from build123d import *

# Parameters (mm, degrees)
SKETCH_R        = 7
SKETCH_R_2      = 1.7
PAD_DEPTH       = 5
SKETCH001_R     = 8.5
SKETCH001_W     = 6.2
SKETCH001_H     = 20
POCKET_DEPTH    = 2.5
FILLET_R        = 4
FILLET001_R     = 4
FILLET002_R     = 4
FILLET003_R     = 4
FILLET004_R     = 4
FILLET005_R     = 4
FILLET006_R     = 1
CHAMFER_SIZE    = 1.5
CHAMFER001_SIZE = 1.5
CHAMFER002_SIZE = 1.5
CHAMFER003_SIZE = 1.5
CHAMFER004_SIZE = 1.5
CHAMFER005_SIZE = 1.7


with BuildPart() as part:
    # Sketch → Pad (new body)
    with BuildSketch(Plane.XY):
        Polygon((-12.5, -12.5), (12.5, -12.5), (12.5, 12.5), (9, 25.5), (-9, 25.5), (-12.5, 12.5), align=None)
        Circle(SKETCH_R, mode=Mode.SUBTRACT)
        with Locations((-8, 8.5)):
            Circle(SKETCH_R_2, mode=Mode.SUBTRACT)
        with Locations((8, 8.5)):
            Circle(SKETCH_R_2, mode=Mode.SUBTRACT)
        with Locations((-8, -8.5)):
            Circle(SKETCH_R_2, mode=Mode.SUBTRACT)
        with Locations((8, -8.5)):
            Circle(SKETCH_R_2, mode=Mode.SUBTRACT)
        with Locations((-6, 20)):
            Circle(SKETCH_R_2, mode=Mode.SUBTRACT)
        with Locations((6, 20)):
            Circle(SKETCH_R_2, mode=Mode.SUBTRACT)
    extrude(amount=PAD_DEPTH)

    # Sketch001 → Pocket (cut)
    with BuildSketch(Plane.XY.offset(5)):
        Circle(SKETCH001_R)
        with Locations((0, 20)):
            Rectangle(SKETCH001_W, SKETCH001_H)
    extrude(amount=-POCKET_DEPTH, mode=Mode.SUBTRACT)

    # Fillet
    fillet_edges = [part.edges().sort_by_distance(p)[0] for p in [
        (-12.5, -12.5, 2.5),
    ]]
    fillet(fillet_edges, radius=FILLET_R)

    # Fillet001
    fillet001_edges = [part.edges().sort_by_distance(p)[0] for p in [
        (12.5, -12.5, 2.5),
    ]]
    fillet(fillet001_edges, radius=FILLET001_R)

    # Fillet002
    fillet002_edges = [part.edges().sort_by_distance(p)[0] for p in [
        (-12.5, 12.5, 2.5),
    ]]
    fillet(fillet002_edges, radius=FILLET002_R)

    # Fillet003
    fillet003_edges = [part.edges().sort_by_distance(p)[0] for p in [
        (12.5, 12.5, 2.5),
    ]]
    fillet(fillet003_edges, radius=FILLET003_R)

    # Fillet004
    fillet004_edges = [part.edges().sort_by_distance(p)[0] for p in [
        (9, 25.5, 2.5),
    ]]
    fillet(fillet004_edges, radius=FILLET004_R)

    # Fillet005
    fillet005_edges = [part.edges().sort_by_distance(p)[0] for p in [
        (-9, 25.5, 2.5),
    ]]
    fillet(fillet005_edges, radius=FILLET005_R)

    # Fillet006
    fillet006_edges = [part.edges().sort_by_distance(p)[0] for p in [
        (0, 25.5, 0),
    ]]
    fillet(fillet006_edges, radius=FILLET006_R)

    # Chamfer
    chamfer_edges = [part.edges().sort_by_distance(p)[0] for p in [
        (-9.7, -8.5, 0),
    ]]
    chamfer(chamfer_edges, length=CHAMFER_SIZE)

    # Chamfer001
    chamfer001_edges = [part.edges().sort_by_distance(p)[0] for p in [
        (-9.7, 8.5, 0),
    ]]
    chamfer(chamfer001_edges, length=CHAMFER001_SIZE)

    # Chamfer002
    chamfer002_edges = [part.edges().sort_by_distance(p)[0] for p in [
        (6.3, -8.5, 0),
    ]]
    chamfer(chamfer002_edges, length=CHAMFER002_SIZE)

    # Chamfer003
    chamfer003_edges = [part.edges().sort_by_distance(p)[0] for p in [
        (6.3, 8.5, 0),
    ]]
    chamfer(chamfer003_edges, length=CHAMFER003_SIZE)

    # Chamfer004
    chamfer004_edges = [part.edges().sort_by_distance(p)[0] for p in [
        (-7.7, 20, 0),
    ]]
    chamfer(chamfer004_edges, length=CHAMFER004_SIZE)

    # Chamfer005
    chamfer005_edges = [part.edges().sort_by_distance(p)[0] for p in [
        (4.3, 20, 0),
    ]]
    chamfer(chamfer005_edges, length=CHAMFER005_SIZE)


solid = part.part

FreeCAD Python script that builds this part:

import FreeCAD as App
import Part
import Sketcher

V = App.Vector


def edges_at(feature, points):
    """Names of the edges that pass closest to the given points."""
    edges = feature.Shape.Edges
    near = lambda p: min(range(len(edges)), key=lambda i: edges[i].distToShape(Part.Vertex(*p))[0])
    return sorted({f"Edge{near(p) + 1}" for p in points})

doc = App.newDocument("Part")
body = doc.addObject("PartDesign::Body", "Body")

# Sketch on XY plane
sketch1 = doc.addObject("Sketcher::SketchObject", "Sketch")
body.addObject(sketch1)
sketch1.AttachmentSupport = (doc.XY_Plane, [""])
sketch1.MapMode = "FlatFace"
sketch1.addGeometry([
    Part.LineSegment(V(-12.5, -12.5, 0), V(12.5, -12.5, 0)),  # 0
    Part.LineSegment(V(12.5, -12.5, 0), V(12.5, 12.5, 0)),  # 1
    Part.LineSegment(V(12.5, 12.5, 0), V(9, 25.5, 0)),  # 2
    Part.LineSegment(V(9, 25.5, 0), V(-9, 25.5, 0)),  # 3
    Part.LineSegment(V(-9, 25.5, 0), V(-12.5, 12.5, 0)),  # 4
    Part.LineSegment(V(-12.5, 12.5, 0), V(-12.5, -12.5, 0)),  # 5
    Part.Circle(V(-8, -8.5, 0), V(0, 0, 1), 1.7),  # 6
    Part.Circle(V(8, -8.5, 0), V(0, 0, 1), 1.7),  # 7
    Part.Circle(V(0, 0, 0), V(0, 0, 1), 7),  # 8
    Part.Circle(V(-8, 8.5, 0), V(0, 0, 1), 1.7),  # 9
    Part.Circle(V(-6, 20, 0), V(0, 0, 1), 1.7),  # 10
    Part.Circle(V(8, 8.5, 0), V(0, 0, 1), 1.7),  # 11
    Part.Circle(V(6, 20, 0), V(0, 0, 1), 1.7),  # 12
], False)
sketch1.addConstraint([
    Sketcher.Constraint("Coincident", 0, 2, 1, 1),
    Sketcher.Constraint("Coincident", 1, 2, 2, 1),
    Sketcher.Constraint("Coincident", 2, 2, 3, 1),
    Sketcher.Constraint("Coincident", 3, 2, 4, 1),
    Sketcher.Constraint("Coincident", 4, 2, 5, 1),
    Sketcher.Constraint("Coincident", 5, 2, 0, 1),
    Sketcher.Constraint("Horizontal", 0),
    Sketcher.Constraint("Vertical", 1),
    Sketcher.Constraint("Horizontal", 3),
    Sketcher.Constraint("Vertical", 5),
    Sketcher.Constraint("Coincident", 8, 3, -1, 1),
    Sketcher.Constraint("Equal", 6, 7),
    Sketcher.Constraint("Equal", 7, 9),
    Sketcher.Constraint("Equal", 9, 10),
    Sketcher.Constraint("Equal", 10, 11),
    Sketcher.Constraint("Equal", 11, 12),
    Sketcher.Constraint("Symmetric", 7, 3, 9, 3, -1, 1),
    Sketcher.Constraint("Symmetric", 6, 3, 11, 3, -1, 1),
    Sketcher.Constraint("Symmetric", 0, 2, 4, 2, -1, 1),
    Sketcher.Constraint("Symmetric", 6, 3, 7, 3, -2),
    Sketcher.Constraint("Symmetric", 10, 3, 12, 3, -2),
    Sketcher.Constraint("Horizontal", 1, 2, 4, 2),
    Sketcher.Constraint("Equal", 0, 1),
    Sketcher.Constraint("Equal", 2, 4),
    Sketcher.Constraint("Diameter", 8, 14.0),
    Sketcher.Constraint("Diameter", 6, 3.4),
    Sketcher.Constraint("DistanceX", 0, 1, 0, 2, 25.0),
    Sketcher.Constraint("DistanceX", 3, 2, 3, 1, 18.0),
    Sketcher.Constraint("DistanceX", 6, 3, -1, 1, 8.0),
    Sketcher.Constraint("DistanceX", 10, 3, -1, 1, 6.0),
    Sketcher.Constraint("DistanceY", -1, 1, 10, 3, 20.0),
    Sketcher.Constraint("DistanceY", 6, 3, 9, 3, 17.0),
    Sketcher.Constraint("DistanceY", 1, 2, 2, 2, 13.0),
])
pad1 = doc.addObject("PartDesign::Pad", "Pad")
body.addObject(pad1)
pad1.Profile = sketch1
pad1.Length = 5

# Sketch on XY plane
sketch2 = doc.addObject("Sketcher::SketchObject", "Sketch001")
body.addObject(sketch2)
sketch2.AttachmentSupport = (doc.XY_Plane, [""])
sketch2.MapMode = "FlatFace"
sketch2.AttachmentOffset = App.Placement(V(0, 0, 5), App.Rotation())
sketch2.addGeometry([
    Part.Circle(V(0, 0, 0), V(0, 0, 1), 8),  # 0
    Part.LineSegment(V(-3, 30, 0), V(-3, 10, 0)),  # 1
    Part.LineSegment(V(-3, 10, 0), V(3, 10, 0)),  # 2
    Part.LineSegment(V(3, 10, 0), V(3, 30, 0)),  # 3
    Part.LineSegment(V(3, 30, 0), V(-3, 30, 0)),  # 4
], False)
sketch2.addConstraint([
    Sketcher.Constraint("Coincident", 1, 2, 2, 1),
    Sketcher.Constraint("Coincident", 2, 2, 3, 1),
    Sketcher.Constraint("Coincident", 3, 2, 4, 1),
    Sketcher.Constraint("Coincident", 4, 2, 1, 1),
    Sketcher.Constraint("Vertical", 1),
    Sketcher.Constraint("Horizontal", 2),
    Sketcher.Constraint("Vertical", 3),
    Sketcher.Constraint("Horizontal", 4),
    Sketcher.Constraint("Coincident", 0, 3, -1, 1),
    Sketcher.Constraint("Diameter", 0, 17.0),
    Sketcher.Constraint("DistanceY", 1, 2, 1, 1, 20.0),
    Sketcher.Constraint("DistanceX", 2, 1, 2, 2, 6.2),
    Sketcher.Constraint("DistanceY", -1, 1, 1, 2, 10.0),
    Sketcher.Constraint("DistanceX", 1, 2, -1, 1, 3.1),
])
pocket1 = doc.addObject("PartDesign::Pocket", "Pocket")
body.addObject(pocket1)
pocket1.Profile = sketch2
pocket1.Length = 2.5
doc.recompute()

fillet = doc.addObject("PartDesign::Fillet", "Fillet")
body.addObject(fillet)
fillet.Base = (pocket1, edges_at(pocket1, [(-12.5, -12.5, 2.5)]))
fillet.Radius = 4
doc.recompute()

fillet2 = doc.addObject("PartDesign::Fillet", "Fillet001")
body.addObject(fillet2)
fillet2.Base = (fillet, edges_at(fillet, [(12.5, -12.5, 2.5)]))
fillet2.Radius = 4
doc.recompute()

fillet3 = doc.addObject("PartDesign::Fillet", "Fillet002")
body.addObject(fillet3)
fillet3.Base = (fillet2, edges_at(fillet2, [(-12.5, 12.5, 2.5)]))
fillet3.Radius = 4
doc.recompute()

fillet4 = doc.addObject("PartDesign::Fillet", "Fillet003")
body.addObject(fillet4)
fillet4.Base = (fillet3, edges_at(fillet3, [(12.5, 12.5, 2.5)]))
fillet4.Radius = 4
doc.recompute()

fillet5 = doc.addObject("PartDesign::Fillet", "Fillet004")
body.addObject(fillet5)
fillet5.Base = (fillet4, edges_at(fillet4, [(9, 25.5, 2.5)]))
fillet5.Radius = 4
doc.recompute()

fillet6 = doc.addObject("PartDesign::Fillet", "Fillet005")
body.addObject(fillet6)
fillet6.Base = (fillet5, edges_at(fillet5, [(-9, 25.5, 2.5)]))
fillet6.Radius = 4
doc.recompute()

fillet7 = doc.addObject("PartDesign::Fillet", "Fillet006")
body.addObject(fillet7)
fillet7.Base = (fillet6, edges_at(fillet6, [(0, 25.5, 0)]))
fillet7.Radius = 1
doc.recompute()

chamfer = doc.addObject("PartDesign::Chamfer", "Chamfer")
body.addObject(chamfer)
chamfer.Base = (fillet7, edges_at(fillet7, [(-9.7, -8.5, 0)]))
chamfer.Size = 1.5
doc.recompute()

chamfer2 = doc.addObject("PartDesign::Chamfer", "Chamfer001")
body.addObject(chamfer2)
chamfer2.Base = (chamfer, edges_at(chamfer, [(-9.7, 8.5, 0)]))
chamfer2.Size = 1.5
doc.recompute()

chamfer3 = doc.addObject("PartDesign::Chamfer", "Chamfer002")
body.addObject(chamfer3)
chamfer3.Base = (chamfer2, edges_at(chamfer2, [(6.3, -8.5, 0)]))
chamfer3.Size = 1.5
doc.recompute()

chamfer4 = doc.addObject("PartDesign::Chamfer", "Chamfer003")
body.addObject(chamfer4)
chamfer4.Base = (chamfer3, edges_at(chamfer3, [(6.3, 8.5, 0)]))
chamfer4.Size = 1.5
doc.recompute()

chamfer5 = doc.addObject("PartDesign::Chamfer", "Chamfer004")
body.addObject(chamfer5)
chamfer5.Base = (chamfer4, edges_at(chamfer4, [(-7.7, 20, 0)]))
chamfer5.Size = 1.5
doc.recompute()

chamfer6 = doc.addObject("PartDesign::Chamfer", "Chamfer005")
body.addObject(chamfer6)
chamfer6.Base = (chamfer5, edges_at(chamfer5, [(4.3, 20, 0)]))
chamfer6.Size = 1.7

doc.recompute()
